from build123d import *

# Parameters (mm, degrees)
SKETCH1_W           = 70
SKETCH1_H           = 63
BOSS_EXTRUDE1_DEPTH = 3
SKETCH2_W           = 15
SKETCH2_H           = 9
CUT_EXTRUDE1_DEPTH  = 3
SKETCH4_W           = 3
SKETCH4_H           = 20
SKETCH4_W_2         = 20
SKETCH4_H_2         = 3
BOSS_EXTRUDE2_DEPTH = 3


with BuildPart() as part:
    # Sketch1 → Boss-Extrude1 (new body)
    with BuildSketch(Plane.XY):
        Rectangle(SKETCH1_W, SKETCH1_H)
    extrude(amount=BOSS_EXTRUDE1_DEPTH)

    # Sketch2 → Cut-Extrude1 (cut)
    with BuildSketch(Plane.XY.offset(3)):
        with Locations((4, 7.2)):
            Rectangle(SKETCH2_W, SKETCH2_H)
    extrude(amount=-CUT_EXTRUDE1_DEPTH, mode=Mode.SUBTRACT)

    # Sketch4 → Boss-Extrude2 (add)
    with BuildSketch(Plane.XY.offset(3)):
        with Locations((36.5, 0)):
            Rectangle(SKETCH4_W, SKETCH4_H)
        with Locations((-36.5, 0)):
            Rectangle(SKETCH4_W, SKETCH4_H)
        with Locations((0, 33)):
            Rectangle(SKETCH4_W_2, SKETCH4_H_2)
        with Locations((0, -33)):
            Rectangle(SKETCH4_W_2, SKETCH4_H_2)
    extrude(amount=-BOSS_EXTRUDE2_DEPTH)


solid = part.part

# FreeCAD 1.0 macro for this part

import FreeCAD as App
import Part
import Sketcher
Q = App.Units.Quantity


def add_polygon(sketch, points):
    """Adds a closed chain of lines whose ends are joined by coincident constraints."""
    first, n = sketch.GeometryCount, len(points)
    for a, b in zip(points, points[1:] + points[:1]):
        sketch.addGeometry(Part.LineSegment(App.Vector(*a, 0), App.Vector(*b, 0)), False)
    for i in range(n):
        sketch.addConstraint(Sketcher.Constraint("Coincident", first + i, 2, first + (i + 1) % n, 1))

doc = App.newDocument("Part")
body = doc.addObject("PartDesign::Body", "Body")

# Sketch on XY plane
sketch1 = body.newObject("Sketcher::SketchObject", "Sketch")
sketch1.AttachmentSupport = (doc.getObject("XY_Plane"), [""])
sketch1.MapMode = "FlatFace"
add_polygon(sketch1, [(-35, 31.5), (-35, -31.5), (35, -31.5), (35, 31.5)])  # lines 0-3
sketch1.addConstraint(Sketcher.Constraint("Vertical", 0))
sketch1.addConstraint(Sketcher.Constraint("Horizontal", 1))
sketch1.addConstraint(Sketcher.Constraint("Vertical", 2))
sketch1.addConstraint(Sketcher.Constraint("Horizontal", 3))
sketch1.addConstraint(Sketcher.Constraint("Symmetric", 0, 2, 2, 2, -1, 1))
sketch1.addConstraint(Sketcher.Constraint("DistanceX", 1, 1, 1, 2, Q("70 mm")))
sketch1.addConstraint(Sketcher.Constraint("DistanceY", 0, 2, 0, 1, Q("63 mm")))
pad1 = body.newObject("PartDesign::Pad", "Pad")
pad1.Profile = sketch1
pad1.Length = 3

# Sketch on XY plane
sketch2 = body.newObject("Sketcher::SketchObject", "Sketch001")
sketch2.AttachmentSupport = (doc.getObject("XY_Plane"), [""])
sketch2.MapMode = "FlatFace"
sketch2.AttachmentOffset = App.Placement(App.Vector(0, 0, 3), App.Rotation())
add_polygon(sketch2, [(-3.5, 11.7), (-3.5, 2.7), (11.5, 2.7), (11.5, 11.7)])  # lines 0-3
sketch2.addConstraint(Sketcher.Constraint("Vertical", 0))
sketch2.addConstraint(Sketcher.Constraint("Horizontal", 1))
sketch2.addConstraint(Sketcher.Constraint("Vertical", 2))
sketch2.addConstraint(Sketcher.Constraint("Horizontal", 3))
sketch2.addConstraint(Sketcher.Constraint("DistanceX", 1, 1, 1, 2, Q("15 mm")))
sketch2.addConstraint(Sketcher.Constraint("DistanceY", 0, 2, 0, 1, Q("9 mm")))
sketch2.addConstraint(Sketcher.Constraint("DistanceX", 0, 2, -1, 1, Q("3.5 mm")))
sketch2.addConstraint(Sketcher.Constraint("DistanceY", -1, 1, 0, 2, Q("2.7 mm")))
pocket1 = body.newObject("PartDesign::Pocket", "Pocket")
pocket1.Profile = sketch2
pocket1.Length = 3

# Sketch on XY plane
sketch3 = body.newObject("Sketcher::SketchObject", "Sketch002")
sketch3.AttachmentSupport = (doc.getObject("XY_Plane"), [""])
sketch3.MapMode = "FlatFace"
sketch3.AttachmentOffset = App.Placement(App.Vector(0, 0, 3), App.Rotation())
add_polygon(sketch3, [(35, 10), (35, -10), (38, -10), (38, 10)])  # lines 0-3
add_polygon(sketch3, [(-38, 10), (-38, -10), (-35, -10), (-35, 10)])  # lines 4-7
add_polygon(sketch3, [(-10, 34.5), (-10, 31.5), (10, 31.5), (10, 34.5)])  # lines 8-11
add_polygon(sketch3, [(-10, -31.5), (-10, -34.5), (10, -34.5), (10, -31.5)])  # lines 12-15
sketch3.addConstraint(Sketcher.Constraint("Vertical", 0))
sketch3.addConstraint(Sketcher.Constraint("Horizontal", 1))
sketch3.addConstraint(Sketcher.Constraint("Vertical", 2))
sketch3.addConstraint(Sketcher.Constraint("Horizontal", 3))
sketch3.addConstraint(Sketcher.Constraint("Vertical", 4))
sketch3.addConstraint(Sketcher.Constraint("Horizontal", 5))
sketch3.addConstraint(Sketcher.Constraint("Vertical", 6))
sketch3.addConstraint(Sketcher.Constraint("Horizontal", 7))
sketch3.addConstraint(Sketcher.Constraint("Vertical", 8))
sketch3.addConstraint(Sketcher.Constraint("Horizontal", 9))
sketch3.addConstraint(Sketcher.Constraint("Vertical", 10))
sketch3.addConstraint(Sketcher.Constraint("Horizontal", 11))
sketch3.addConstraint(Sketcher.Constraint("Vertical", 12))
sketch3.addConstraint(Sketcher.Constraint("Horizontal", 13))
sketch3.addConstraint(Sketcher.Constraint("Vertical", 14))
sketch3.addConstraint(Sketcher.Constraint("Horizontal", 15))
sketch3.addConstraint(Sketcher.Constraint("Symmetric", 2, 2, 4, 2, -1, 1))
sketch3.addConstraint(Sketcher.Constraint("Symmetric", 0, 2, 6, 2, -1, 1))
sketch3.addConstraint(Sketcher.Constraint("Symmetric", 10, 2, 12, 2, -1, 1))
sketch3.addConstraint(Sketcher.Constraint("Symmetric", 8, 2, 14, 2, -1, 1))
sketch3.addConstraint(Sketcher.Constraint("Horizontal", 1, 2, 4, 2))
sketch3.addConstraint(Sketcher.Constraint("Vertical", 11, 2, 12, 2))
sketch3.addConstraint(Sketcher.Constraint("Equal", 15, 0))
sketch3.addConstraint(Sketcher.Constraint("Equal", 7, 8))
sketch3.addConstraint(Sketcher.Constraint("DistanceX", 1, 1, 1, 2, Q("3 mm")))
sketch3.addConstraint(Sketcher.Constraint("DistanceX", 9, 1, 9, 2, Q("20 mm")))
sketch3.addConstraint(Sketcher.Constraint("DistanceX", -1, 1, 0, 2, Q("35 mm")))
sketch3.addConstraint(Sketcher.Constraint("DistanceY", -1, 1, 8, 2, Q("31.5 mm")))
pad2 = body.newObject("PartDesign::Pad", "Pad001")
pad2.Profile = sketch3
pad2.Length = 3
pad2.Reversed = True

doc.recompute()
